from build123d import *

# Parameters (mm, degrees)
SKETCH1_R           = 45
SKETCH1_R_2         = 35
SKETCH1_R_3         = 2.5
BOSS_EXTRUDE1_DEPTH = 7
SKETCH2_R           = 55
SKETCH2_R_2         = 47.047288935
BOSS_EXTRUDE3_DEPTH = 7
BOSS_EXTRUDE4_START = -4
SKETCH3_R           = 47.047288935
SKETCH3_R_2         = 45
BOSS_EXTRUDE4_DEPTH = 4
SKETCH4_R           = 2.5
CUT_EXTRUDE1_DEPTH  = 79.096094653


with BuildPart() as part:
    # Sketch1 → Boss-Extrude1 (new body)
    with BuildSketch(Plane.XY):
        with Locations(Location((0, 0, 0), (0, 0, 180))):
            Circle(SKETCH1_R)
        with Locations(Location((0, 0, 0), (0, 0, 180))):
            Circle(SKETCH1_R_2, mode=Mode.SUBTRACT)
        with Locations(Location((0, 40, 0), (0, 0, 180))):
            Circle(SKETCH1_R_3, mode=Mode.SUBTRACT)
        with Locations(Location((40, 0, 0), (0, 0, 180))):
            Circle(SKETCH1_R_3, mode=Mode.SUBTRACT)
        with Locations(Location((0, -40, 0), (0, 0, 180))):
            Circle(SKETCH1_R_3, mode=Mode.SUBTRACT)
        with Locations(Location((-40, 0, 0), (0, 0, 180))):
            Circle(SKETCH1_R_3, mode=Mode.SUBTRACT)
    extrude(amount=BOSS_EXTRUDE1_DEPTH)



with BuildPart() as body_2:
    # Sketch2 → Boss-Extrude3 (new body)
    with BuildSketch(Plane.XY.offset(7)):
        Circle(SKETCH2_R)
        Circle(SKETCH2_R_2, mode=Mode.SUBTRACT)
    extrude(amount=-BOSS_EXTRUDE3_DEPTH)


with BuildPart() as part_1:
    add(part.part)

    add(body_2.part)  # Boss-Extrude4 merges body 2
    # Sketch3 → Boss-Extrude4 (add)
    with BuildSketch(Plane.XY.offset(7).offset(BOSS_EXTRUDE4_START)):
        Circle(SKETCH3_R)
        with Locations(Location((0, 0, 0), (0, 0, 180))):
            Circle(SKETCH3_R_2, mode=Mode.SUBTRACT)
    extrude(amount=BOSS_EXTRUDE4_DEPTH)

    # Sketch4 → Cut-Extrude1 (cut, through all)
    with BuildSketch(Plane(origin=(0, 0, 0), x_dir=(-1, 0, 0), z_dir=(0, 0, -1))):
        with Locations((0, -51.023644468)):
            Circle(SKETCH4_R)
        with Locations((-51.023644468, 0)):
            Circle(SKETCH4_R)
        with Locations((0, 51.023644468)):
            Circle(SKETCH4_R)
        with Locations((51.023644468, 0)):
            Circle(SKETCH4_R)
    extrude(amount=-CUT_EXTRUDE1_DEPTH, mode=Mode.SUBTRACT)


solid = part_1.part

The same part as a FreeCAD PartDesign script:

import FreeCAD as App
import Part
import Sketcher

V = App.Vector

doc = App.newDocument("Part")
params = doc.addObject("Spreadsheet::Sheet", "Params")
for row, (alias, value) in enumerate([
    ("sketch1_diameter", "90 mm"),
    ("sketch1_diameter2", "5 mm"),
    ("sketch1_diameter3", "70 mm"),
    ("pad1_length", "7 mm"),
    ("sketch2_diameter", "110 mm"),
    ("pad2_length", "7 mm"),
    ("sketch3_diameter", "90 mm"),
    ("pad3_length", "4 mm"),
    ("sketch4_diameter", "5 mm"),
], start=1):
    params.set(f"A{row}", alias)
    params.set(f"B{row}", "=" + value)
    params.setAlias(f"B{row}", alias)

body = doc.addObject("PartDesign::Body", "Body")

# Sketch on XY plane
sketch1 = body.newObject("Sketcher::SketchObject", "Sketch")
sketch1.AttachmentSupport = (doc.getObject("XY_Plane"), [""])
sketch1.MapMode = "FlatFace"
sketch1.addGeometry([
    Part.Circle(V(0, 0, 0), V(0, 0, 1), 45),  # 0
    Part.Circle(V(40, 0, 0), V(0, 0, 1), 2.5),  # 1
    Part.Circle(V(0, 40, 0), V(0, 0, 1), 2.5),  # 2
    Part.Circle(V(0, 0, 0), V(0, 0, 1), 35),  # 3
    Part.Circle(V(-40, 0, 0), V(0, 0, 1), 2.5),  # 4
    Part.Circle(V(0, -40, 0), V(0, 0, 1), 2.5),  # 5
], False)
sketch1.addConstraint([
    Sketcher.Constraint("Coincident", 0, 3, -1, 1),
    Sketcher.Constraint("Coincident", 3, 3, -1, 1),
    Sketcher.Constraint("Equal", 1, 2),
    Sketcher.Constraint("Equal", 2, 4),
    Sketcher.Constraint("Equal", 4, 5),
    Sketcher.Constraint("Symmetric", 1, 3, 4, 3, -1, 1),
    Sketcher.Constraint("Symmetric", 2, 3, 5, 3, -1, 1),
    Sketcher.Constraint("PointOnObject", 1, 3, -1),
    Sketcher.Constraint("PointOnObject", 2, 3, -2),
    Sketcher.Constraint("Diameter", 0, 90.0),
    Sketcher.Constraint("Diameter", 1, 5.0),
    Sketcher.Constraint("Diameter", 3, 70.0),
    Sketcher.Constraint("DistanceX", -1, 1, 1, 3, 40.0),
    Sketcher.Constraint("DistanceY", -1, 1, 2, 3, 40.0),
])
sketch1.setExpression("Constraints[9]", "Params.sketch1_diameter")
sketch1.setExpression("Constraints[10]", "Params.sketch1_diameter2")
sketch1.setExpression("Constraints[11]", "Params.sketch1_diameter3")
pad1 = body.newObject("PartDesign::Pad", "Pad")
pad1.Profile = sketch1
pad1.setExpression("Length", "Params.pad1_length")
body2 = doc.addObject("PartDesign::Body", "Body001")

# Sketch on XY plane
sketch2 = body2.newObject("Sketcher::SketchObject", "Sketch001")
sketch2.AttachmentSupport = (doc.getObject("XY_Plane001"), [""])
sketch2.MapMode = "FlatFace"
sketch2.AttachmentOffset = App.Placement(V(0, 0, 7), App.Rotation())
sketch2.addGeometry([
    Part.Circle(V(0, 0, 0), V(0, 0, 1), 55),
    Part.Circle(V(0, 0, 0), V(0, 0, 1), 47),
], False)
sketch2.addConstraint([
    Sketcher.Constraint("Coincident", 0, 3, -1, 1),
    Sketcher.Constraint("Coincident", 1, 3, -1, 1),
    Sketcher.Constraint("Diameter", 0, 110.0),
    Sketcher.Constraint("Diameter", 1, 94.094578),
])
sketch2.setExpression("Constraints[2]", "Params.sketch2_diameter")
pad2 = body2.newObject("PartDesign::Pad", "Pad001")
pad2.Profile = sketch2
pad2.setExpression("Length", "Params.pad2_length")
pad2.Reversed = True
body.AllowCompound = True
doc.recompute()

boolean = body.newObject("PartDesign::Boolean", "Boolean")
boolean.Type = "Fuse"
boolean.addObjects([body2])

# Sketch on XY plane
sketch3 = body.newObject("Sketcher::SketchObject", "Sketch002")
sketch3.AttachmentSupport = (doc.getObject("XY_Plane"), [""])
sketch3.MapMode = "FlatFace"
sketch3.AttachmentOffset = App.Placement(V(0, 0, 3), App.Rotation())
sketch3.addGeometry([
    Part.Circle(V(0, 0, 0), V(0, 0, 1), 47),
    Part.Circle(V(0, 0, 0), V(0, 0, 1), 45),
], False)
sketch3.addConstraint([
    Sketcher.Constraint("Coincident", 0, 3, -1, 1),
    Sketcher.Constraint("Coincident", 1, 3, -1, 1),
    Sketcher.Constraint("Diameter", 1, 90.0),
    Sketcher.Constraint("Diameter", 0, 94.094578),
])
sketch3.setExpression("Constraints[2]", "Params.sketch3_diameter")
pad3 = body.newObject("PartDesign::Pad", "Pad002")
pad3.Profile = sketch3
pad3.setExpression("Length", "Params.pad3_length")

# Sketch on XY plane
sketch4 = body.newObject("Sketcher::SketchObject", "Sketch003")
sketch4.AttachmentSupport = (doc.getObject("XY_Plane"), [""])
sketch4.MapMode = "FlatFace"
sketch4.addGeometry([
    Part.Circle(V(0, -51, 0), V(0, 0, 1), 2.5),
    Part.Circle(V(51, 0, 0), V(0, 0, 1), 2.5),
    Part.Circle(V(0, 51, 0), V(0, 0, 1), 2.5),
    Part.Circle(V(-51, 0, 0), V(0, 0, 1), 2.5),
], False)
sketch4.addConstraint([
    Sketcher.Constraint("Equal", 0, 1),
    Sketcher.Constraint("Equal", 1, 2),
    Sketcher.Constraint("Equal", 2, 3),
    Sketcher.Constraint("Symmetric", 0, 3, 2, 3, -1, 1),
    Sketcher.Constraint("Symmetric", 1, 3, 3, 3, -1, 1),
    Sketcher.Constraint("PointOnObject", 0, 3, -2),
    Sketcher.Constraint("PointOnObject", 1, 3, -1),
    Sketcher.Constraint("Diameter", 0, 5.0),
    Sketcher.Constraint("DistanceY", 0, 3, 2, 3, 102.047289),
    Sketcher.Constraint("DistanceX", 3, 3, 1, 3, 102.047289),
])
sketch4.setExpression("Constraints[7]", "Params.sketch4_diameter")
pocket1 = body.newObject("PartDesign::Pocket", "Pocket")
pocket1.Profile = sketch4
pocket1.Type = "ThroughAll"
pocket1.Reversed = True

doc.recompute()
